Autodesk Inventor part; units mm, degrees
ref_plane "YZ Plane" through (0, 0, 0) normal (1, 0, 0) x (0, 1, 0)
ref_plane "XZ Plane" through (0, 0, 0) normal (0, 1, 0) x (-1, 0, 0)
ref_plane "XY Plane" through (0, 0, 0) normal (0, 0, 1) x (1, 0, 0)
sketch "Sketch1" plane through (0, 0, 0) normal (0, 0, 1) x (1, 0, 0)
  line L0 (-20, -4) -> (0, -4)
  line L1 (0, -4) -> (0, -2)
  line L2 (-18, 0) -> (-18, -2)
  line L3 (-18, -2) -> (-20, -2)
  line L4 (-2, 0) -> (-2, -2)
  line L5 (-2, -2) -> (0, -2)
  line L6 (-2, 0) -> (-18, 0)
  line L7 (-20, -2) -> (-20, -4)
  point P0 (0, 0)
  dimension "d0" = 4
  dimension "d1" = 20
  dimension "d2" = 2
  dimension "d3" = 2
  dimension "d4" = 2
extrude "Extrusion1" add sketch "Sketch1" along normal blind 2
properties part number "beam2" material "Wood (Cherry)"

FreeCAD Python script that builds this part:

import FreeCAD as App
import Part
import Sketcher
from FreeCAD import Vector
Q = App.Units.Quantity

doc = App.newDocument("Part")
body = doc.addObject("PartDesign::Body", "Body")

sketch1 = body.newObject("Sketcher::SketchObject", "Sketch")
sketch1.AttachmentSupport = (doc.getObject("XY_Plane"), [""])
sketch1.MapMode = "FlatFace"
sketch1.addGeometry([
    Part.LineSegment(Vector(-20, -2, 0), Vector(-20, -4, 0)),
    Part.LineSegment(Vector(-20, -4, 0), Vector(0, -4, 0)),
    Part.LineSegment(Vector(0, -4, 0), Vector(0, -2, 0)),
    Part.LineSegment(Vector(0, -2, 0), Vector(-2, -2, 0)),
    Part.LineSegment(Vector(-2, -2, 0), Vector(-2, 0, 0)),
    Part.LineSegment(Vector(-2, 0, 0), Vector(-18, 0, 0)),
    Part.LineSegment(Vector(-18, 0, 0), Vector(-18, -2, 0)),
    Part.LineSegment(Vector(-18, -2, 0), Vector(-20, -2, 0)),
], False)
sketch1.addConstraint([
    Sketcher.Constraint("Coincident", 0, 2, 1, 1),
    Sketcher.Constraint("Coincident", 1, 2, 2, 1),
    Sketcher.Constraint("Coincident", 2, 2, 3, 1),
    Sketcher.Constraint("Coincident", 3, 2, 4, 1),
    Sketcher.Constraint("Coincident", 4, 2, 5, 1),
    Sketcher.Constraint("Coincident", 5, 2, 6, 1),
    Sketcher.Constraint("Coincident", 6, 2, 7, 1),
    Sketcher.Constraint("Coincident", 7, 2, 0, 1),
    Sketcher.Constraint("Vertical", 0),
    Sketcher.Constraint("Horizontal", 1),
    Sketcher.Constraint("Vertical", 2),
    Sketcher.Constraint("Horizontal", 3),
    Sketcher.Constraint("Vertical", 4),
    Sketcher.Constraint("Horizontal", 5),
    Sketcher.Constraint("Vertical", 6),
    Sketcher.Constraint("Horizontal", 7),
    Sketcher.Constraint("PointOnObject", 1, 2, -2),
    Sketcher.Constraint("PointOnObject", 4, 2, -1),
    Sketcher.Constraint("Horizontal", 3, 2, 6, 2),
    Sketcher.Constraint("Equal", 3, 7),
    Sketcher.Constraint("Equal", 7, 0),
    Sketcher.Constraint("Equal", 2, 4),
    Sketcher.Constraint("DistanceX", 1, 1, 1, 2, Q("20 mm")),
    Sketcher.Constraint("DistanceX", 3, 2, 3, 1, Q("2 mm")),
])
pad1 = body.newObject("PartDesign::Pad", "Pad")
pad1.Profile = sketch1
pad1.Length = 2

doc.recompute()
